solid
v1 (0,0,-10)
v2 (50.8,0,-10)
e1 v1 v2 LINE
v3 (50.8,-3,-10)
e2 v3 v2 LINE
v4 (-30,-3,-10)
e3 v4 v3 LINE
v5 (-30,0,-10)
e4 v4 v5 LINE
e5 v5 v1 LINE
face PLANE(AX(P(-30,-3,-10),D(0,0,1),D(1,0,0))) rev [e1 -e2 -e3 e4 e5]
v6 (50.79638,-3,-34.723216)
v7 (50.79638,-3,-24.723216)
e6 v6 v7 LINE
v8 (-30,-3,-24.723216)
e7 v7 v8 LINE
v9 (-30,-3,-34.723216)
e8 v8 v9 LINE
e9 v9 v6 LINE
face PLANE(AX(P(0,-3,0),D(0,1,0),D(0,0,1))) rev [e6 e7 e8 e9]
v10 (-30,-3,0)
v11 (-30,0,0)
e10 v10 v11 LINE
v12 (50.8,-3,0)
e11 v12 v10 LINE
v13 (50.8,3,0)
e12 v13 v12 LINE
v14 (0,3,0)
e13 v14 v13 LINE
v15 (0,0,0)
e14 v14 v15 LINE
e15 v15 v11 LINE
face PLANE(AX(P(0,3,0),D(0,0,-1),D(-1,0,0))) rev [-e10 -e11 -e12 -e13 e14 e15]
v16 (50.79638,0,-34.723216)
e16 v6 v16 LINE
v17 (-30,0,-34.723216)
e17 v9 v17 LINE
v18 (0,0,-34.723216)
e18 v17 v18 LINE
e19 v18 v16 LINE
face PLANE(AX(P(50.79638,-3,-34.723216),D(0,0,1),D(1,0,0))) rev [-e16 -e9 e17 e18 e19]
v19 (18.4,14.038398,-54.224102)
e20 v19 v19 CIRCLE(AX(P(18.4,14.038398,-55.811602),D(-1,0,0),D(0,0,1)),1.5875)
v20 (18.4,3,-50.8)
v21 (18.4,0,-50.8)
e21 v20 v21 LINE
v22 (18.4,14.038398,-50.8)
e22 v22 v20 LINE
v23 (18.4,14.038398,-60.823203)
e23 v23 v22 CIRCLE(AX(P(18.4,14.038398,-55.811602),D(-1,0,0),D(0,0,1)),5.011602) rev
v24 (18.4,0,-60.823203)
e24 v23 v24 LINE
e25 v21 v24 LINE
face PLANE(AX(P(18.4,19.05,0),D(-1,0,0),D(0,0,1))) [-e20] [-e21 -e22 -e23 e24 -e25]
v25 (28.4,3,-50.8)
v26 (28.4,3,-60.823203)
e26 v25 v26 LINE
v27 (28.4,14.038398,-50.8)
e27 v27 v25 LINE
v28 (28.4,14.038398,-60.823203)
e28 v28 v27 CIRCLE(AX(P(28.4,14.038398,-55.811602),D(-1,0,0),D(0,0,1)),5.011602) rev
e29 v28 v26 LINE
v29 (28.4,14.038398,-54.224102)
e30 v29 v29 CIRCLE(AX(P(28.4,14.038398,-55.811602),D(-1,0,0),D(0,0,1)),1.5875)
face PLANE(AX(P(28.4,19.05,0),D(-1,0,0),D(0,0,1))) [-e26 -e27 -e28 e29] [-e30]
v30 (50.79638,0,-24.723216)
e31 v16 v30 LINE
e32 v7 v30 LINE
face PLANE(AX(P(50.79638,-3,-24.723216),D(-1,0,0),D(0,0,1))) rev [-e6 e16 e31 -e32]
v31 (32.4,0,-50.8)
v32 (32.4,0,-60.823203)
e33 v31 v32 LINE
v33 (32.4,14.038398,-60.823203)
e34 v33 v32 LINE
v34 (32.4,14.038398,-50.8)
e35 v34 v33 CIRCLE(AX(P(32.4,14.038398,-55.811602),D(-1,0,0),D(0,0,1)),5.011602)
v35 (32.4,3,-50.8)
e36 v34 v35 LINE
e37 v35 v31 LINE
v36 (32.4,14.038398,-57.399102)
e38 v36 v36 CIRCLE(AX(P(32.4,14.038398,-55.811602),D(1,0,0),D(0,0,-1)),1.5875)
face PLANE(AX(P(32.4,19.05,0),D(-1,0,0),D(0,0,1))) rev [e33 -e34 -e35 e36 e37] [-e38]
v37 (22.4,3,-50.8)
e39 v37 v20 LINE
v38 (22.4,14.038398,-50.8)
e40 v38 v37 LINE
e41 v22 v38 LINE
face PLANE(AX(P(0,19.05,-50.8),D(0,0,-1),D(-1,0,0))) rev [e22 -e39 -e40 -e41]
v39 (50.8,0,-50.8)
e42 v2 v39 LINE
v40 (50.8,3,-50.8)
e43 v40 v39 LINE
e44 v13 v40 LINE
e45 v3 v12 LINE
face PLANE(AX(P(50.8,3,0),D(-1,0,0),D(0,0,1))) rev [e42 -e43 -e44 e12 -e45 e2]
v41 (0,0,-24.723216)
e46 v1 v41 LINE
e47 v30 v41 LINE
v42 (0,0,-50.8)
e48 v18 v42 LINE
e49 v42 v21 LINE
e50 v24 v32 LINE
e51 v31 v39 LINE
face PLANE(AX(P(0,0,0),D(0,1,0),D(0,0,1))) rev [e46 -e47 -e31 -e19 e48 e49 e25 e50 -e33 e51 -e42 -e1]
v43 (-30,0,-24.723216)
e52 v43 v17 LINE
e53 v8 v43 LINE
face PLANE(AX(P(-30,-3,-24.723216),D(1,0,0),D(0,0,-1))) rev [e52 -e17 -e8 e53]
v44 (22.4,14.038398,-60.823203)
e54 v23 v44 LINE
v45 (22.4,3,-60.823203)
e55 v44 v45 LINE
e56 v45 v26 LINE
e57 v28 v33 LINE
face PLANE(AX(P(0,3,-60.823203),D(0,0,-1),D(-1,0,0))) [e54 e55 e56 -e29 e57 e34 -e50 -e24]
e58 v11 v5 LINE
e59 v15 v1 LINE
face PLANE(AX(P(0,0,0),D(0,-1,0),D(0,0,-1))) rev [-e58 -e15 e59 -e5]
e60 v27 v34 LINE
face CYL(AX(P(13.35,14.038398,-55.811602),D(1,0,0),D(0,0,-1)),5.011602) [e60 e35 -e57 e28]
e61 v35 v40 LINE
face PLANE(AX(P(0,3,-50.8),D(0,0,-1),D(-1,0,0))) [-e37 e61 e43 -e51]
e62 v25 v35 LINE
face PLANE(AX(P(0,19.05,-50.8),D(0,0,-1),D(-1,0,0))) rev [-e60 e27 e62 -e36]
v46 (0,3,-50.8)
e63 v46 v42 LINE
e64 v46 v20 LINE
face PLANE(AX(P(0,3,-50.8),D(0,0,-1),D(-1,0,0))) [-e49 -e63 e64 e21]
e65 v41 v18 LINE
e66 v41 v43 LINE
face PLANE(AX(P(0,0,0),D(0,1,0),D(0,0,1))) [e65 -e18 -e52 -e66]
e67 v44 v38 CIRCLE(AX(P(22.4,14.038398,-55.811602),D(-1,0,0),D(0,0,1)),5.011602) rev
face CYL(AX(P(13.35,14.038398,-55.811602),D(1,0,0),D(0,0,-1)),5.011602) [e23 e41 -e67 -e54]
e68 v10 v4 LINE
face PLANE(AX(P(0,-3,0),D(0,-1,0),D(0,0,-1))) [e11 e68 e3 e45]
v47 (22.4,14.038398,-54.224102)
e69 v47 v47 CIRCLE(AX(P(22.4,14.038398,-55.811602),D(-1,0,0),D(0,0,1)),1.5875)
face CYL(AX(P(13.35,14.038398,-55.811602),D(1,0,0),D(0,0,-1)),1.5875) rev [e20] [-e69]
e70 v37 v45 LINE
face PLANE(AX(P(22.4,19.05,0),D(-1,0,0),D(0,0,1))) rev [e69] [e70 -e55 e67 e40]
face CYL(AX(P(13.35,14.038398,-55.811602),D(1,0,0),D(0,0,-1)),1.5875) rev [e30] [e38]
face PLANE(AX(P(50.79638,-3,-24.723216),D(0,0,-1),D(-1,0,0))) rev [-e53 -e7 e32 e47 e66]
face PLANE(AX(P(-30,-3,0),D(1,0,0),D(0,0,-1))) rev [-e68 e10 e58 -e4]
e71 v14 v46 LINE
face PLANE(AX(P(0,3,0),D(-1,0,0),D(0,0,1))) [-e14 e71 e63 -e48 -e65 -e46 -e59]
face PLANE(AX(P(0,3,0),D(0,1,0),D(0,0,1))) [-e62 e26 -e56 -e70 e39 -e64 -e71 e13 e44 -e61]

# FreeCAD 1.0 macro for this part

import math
import FreeCAD as App
import Part
import Sketcher
from FreeCAD import Vector
Q = App.Units.Quantity


def add_polygon(sketch, points):
    """Adds a closed chain of lines whose ends are joined by coincident constraints."""
    first, n = sketch.GeometryCount, len(points)
    for a, b in zip(points, points[1:] + points[:1]):
        sketch.addGeometry(Part.LineSegment(App.Vector(*a, 0), App.Vector(*b, 0)), False)
    for i in range(n):
        sketch.addConstraint(Sketcher.Constraint("Coincident", first + i, 2, first + (i + 1) % n, 1))

doc = App.newDocument("Part")
body = doc.addObject("PartDesign::Body", "Body")

# Sketch on XZ plane
sketch1 = doc.addObject("Sketcher::SketchObject", "Sketch")
body.addObject(sketch1)
sketch1.AttachmentSupport = (doc.XZ_Plane, [""])
sketch1.MapMode = "FlatFace"
add_polygon(sketch1, [(0, -51), (0, 0), (51, 0), (51, -51), (28, -51), (28, -61), (22, -61), (22, -51)])  # lines 0-7
sketch1.addConstraint(Sketcher.Constraint("Vertical", 0))
sketch1.addConstraint(Sketcher.Constraint("Horizontal", 1))
sketch1.addConstraint(Sketcher.Constraint("Vertical", 2))
sketch1.addConstraint(Sketcher.Constraint("Horizontal", 3))
sketch1.addConstraint(Sketcher.Constraint("Vertical", 4))
sketch1.addConstraint(Sketcher.Constraint("Horizontal", 5))
sketch1.addConstraint(Sketcher.Constraint("Vertical", 6))
sketch1.addConstraint(Sketcher.Constraint("Horizontal", 7))
sketch1.addConstraint(Sketcher.Constraint("Coincident", 0, 2, -1, 1))
sketch1.addConstraint(Sketcher.Constraint("Horizontal", 3, 2, 6, 2))
sketch1.addConstraint(Sketcher.Constraint("Equal", 3, 7))
sketch1.addConstraint(Sketcher.Constraint("Equal", 1, 0))
sketch1.addConstraint(Sketcher.Constraint("DistanceX", 5, 2, 5, 1, Q("6 mm")))
sketch1.addConstraint(Sketcher.Constraint("DistanceX", 1, 1, 1, 2, Q("50.8 mm")))
sketch1.addConstraint(Sketcher.Constraint("DistanceY", 4, 2, 4, 1, Q("10.023203 mm")))
pad1 = doc.addObject("PartDesign::Pad", "Pad")
body.addObject(pad1)
pad1.Profile = sketch1
pad1.Length = 3
pad1.Reversed = True

# Sketch on XZ plane
sketch2 = doc.addObject("Sketcher::SketchObject", "Sketch001")
body.addObject(sketch2)
sketch2.AttachmentSupport = (doc.XZ_Plane, [""])
sketch2.MapMode = "FlatFace"
add_polygon(sketch2, [(28.4, -60.8), (28.4, -50.8), (32.4, -50.8), (32.4, -60.8)])  # lines 0-3
add_polygon(sketch2, [(18.4, -60.8), (18.4, -50.8), (22.4, -50.8), (22.4, -60.8)])  # lines 4-7
sketch2.addConstraint(Sketcher.Constraint("Vertical", 0))
sketch2.addConstraint(Sketcher.Constraint("Horizontal", 1))
sketch2.addConstraint(Sketcher.Constraint("Vertical", 2))
sketch2.addConstraint(Sketcher.Constraint("Horizontal", 3))
sketch2.addConstraint(Sketcher.Constraint("Vertical", 4))
sketch2.addConstraint(Sketcher.Constraint("Horizontal", 5))
sketch2.addConstraint(Sketcher.Constraint("Vertical", 6))
sketch2.addConstraint(Sketcher.Constraint("Horizontal", 7))
sketch2.addConstraint(Sketcher.Constraint("Horizontal", 1, 2, 4, 2))
sketch2.addConstraint(Sketcher.Constraint("Horizontal", 3, 2, 6, 2))
sketch2.addConstraint(Sketcher.Constraint("Equal", 3, 5))
sketch2.addConstraint(Sketcher.Constraint("DistanceX", 1, 1, 1, 2, Q("4 mm")))
sketch2.addConstraint(Sketcher.Constraint("DistanceX", 4, 2, 0, 2, Q("10 mm")))
sketch2.addConstraint(Sketcher.Constraint("DistanceX", -1, 1, 0, 2, Q("28.4 mm")))
sketch2.addConstraint(Sketcher.Constraint("DistanceY", 0, 2, -1, 1, Q("50.8 mm")))
sketch2.addConstraint(Sketcher.Constraint("DistanceY", 0, 1, 0, 2, Q("10.023203 mm")))
pad2 = doc.addObject("PartDesign::Pad", "Pad001")
body.addObject(pad2)
pad2.Profile = sketch2
pad2.Length = 19.05
pad2.Reversed = True

# Sketch on YZ plane
sketch3 = doc.addObject("Sketcher::SketchObject", "Sketch002")
body.addObject(sketch3)
sketch3.AttachmentSupport = (doc.YZ_Plane, [""])
sketch3.MapMode = "FlatFace"
sketch3.AttachmentOffset = App.Placement(Vector(0, 0, 32.4), App.Rotation())
sketch3.addGeometry(Part.Circle(Vector(14, -55.8, 0), Vector(0, 0, 1), 1.6), False)
sketch3.addGeometry(Part.LineSegment(Vector(20.4, -49.9, 0), Vector(14, -50.8, 0)), False)
sketch3.addGeometry(Part.ArcOfCircle(Part.Circle(Vector(14, -55.8, 0), Vector(0, 0, 1), 5), math.radians(-90), math.radians(90)), False)
sketch3.addGeometry(Part.LineSegment(Vector(14, -60.8, 0), Vector(21.2, -64.5, 0)), False)
sketch3.addGeometry(Part.LineSegment(Vector(21.2, -64.5, 0), Vector(20.4, -49.9, 0)), False)
sketch3.addConstraint(Sketcher.Constraint("Coincident", 1, 2, 2, 2))
sketch3.addConstraint(Sketcher.Constraint("Coincident", 2, 1, 3, 1))
sketch3.addConstraint(Sketcher.Constraint("Coincident", 3, 2, 4, 1))
sketch3.addConstraint(Sketcher.Constraint("Coincident", 4, 2, 1, 1))
sketch3.addConstraint(Sketcher.Constraint("Coincident", 2, 3, 0, 3))
sketch3.addConstraint(Sketcher.Constraint("Vertical", 2, 3, 1, 2))
sketch3.addConstraint(Sketcher.Constraint("Vertical", 1, 2, 2, 1))
sketch3.addConstraint(Sketcher.Constraint("Diameter", 0, Q("3.175 mm")))
sketch3.addConstraint(Sketcher.Constraint("DistanceY", 1, 2, -1, 1, Q("50.8 mm")))
sketch3.addConstraint(Sketcher.Constraint("Radius", 2, Q("5.011602 mm")))
sketch3.addConstraint(Sketcher.Constraint("DistanceX", -1, 1, 0, 3, Q("14.038398 mm")))
sketch3.addConstraint(Sketcher.Constraint("Distance", 1, Q("6.418462 mm")))
sketch3.addConstraint(Sketcher.Constraint("DistanceX", -1, 1, 3, 2, Q("21.24774 mm")))
sketch3.addConstraint(Sketcher.Constraint("DistanceX", -1, 1, 4, 2, Q("20.39506 mm")))
sketch3.addConstraint(Sketcher.Constraint("DistanceY", 3, 2, 4, 2, Q("14.590309 mm")))
pocket1 = doc.addObject("PartDesign::Pocket", "Pocket")
body.addObject(pocket1)
pocket1.Profile = sketch3
pocket1.Length = 19.05

# Sketch on XZ plane
sketch4 = doc.addObject("Sketcher::SketchObject", "Sketch003")
body.addObject(sketch4)
sketch4.AttachmentSupport = (doc.XZ_Plane, [""])
sketch4.MapMode = "FlatFace"
add_polygon(sketch4, [(-30, 0), (-30, -10), (51, -10), (51, 0)])  # lines 0-3
add_polygon(sketch4, [(-30, -25), (-30, -35), (51, -35), (51, -25)])  # lines 4-7
sketch4.addConstraint(Sketcher.Constraint("Vertical", 0))
sketch4.addConstraint(Sketcher.Constraint("Horizontal", 1))
sketch4.addConstraint(Sketcher.Constraint("Vertical", 2))
sketch4.addConstraint(Sketcher.Constraint("Horizontal", 3))
sketch4.addConstraint(Sketcher.Constraint("Vertical", 4))
sketch4.addConstraint(Sketcher.Constraint("Horizontal", 5))
sketch4.addConstraint(Sketcher.Constraint("Vertical", 6))
sketch4.addConstraint(Sketcher.Constraint("Horizontal", 7))
sketch4.addConstraint(Sketcher.Constraint("PointOnObject", 2, 2, -1))
sketch4.addConstraint(Sketcher.Constraint("Vertical", 3, 2, 4, 2))
sketch4.addConstraint(Sketcher.Constraint("Equal", 2, 4))
sketch4.addConstraint(Sketcher.Constraint("DistanceY", 0, 2, 0, 1, Q("10 mm")))
sketch4.addConstraint(Sketcher.Constraint("DistanceX", 1, 1, 1, 2, Q("80.8 mm")))
sketch4.addConstraint(Sketcher.Constraint("DistanceX", 0, 2, -1, 1, Q("30 mm")))
sketch4.addConstraint(Sketcher.Constraint("DistanceX", 5, 1, 5, 2, Q("80.79638 mm")))
sketch4.addConstraint(Sketcher.Constraint("DistanceY", 4, 2, -1, 1, Q("34.723216 mm")))
pad3 = doc.addObject("PartDesign::Pad", "Pad002")
body.addObject(pad3)
pad3.Profile = sketch4
pad3.Length = 3

doc.recompute()
